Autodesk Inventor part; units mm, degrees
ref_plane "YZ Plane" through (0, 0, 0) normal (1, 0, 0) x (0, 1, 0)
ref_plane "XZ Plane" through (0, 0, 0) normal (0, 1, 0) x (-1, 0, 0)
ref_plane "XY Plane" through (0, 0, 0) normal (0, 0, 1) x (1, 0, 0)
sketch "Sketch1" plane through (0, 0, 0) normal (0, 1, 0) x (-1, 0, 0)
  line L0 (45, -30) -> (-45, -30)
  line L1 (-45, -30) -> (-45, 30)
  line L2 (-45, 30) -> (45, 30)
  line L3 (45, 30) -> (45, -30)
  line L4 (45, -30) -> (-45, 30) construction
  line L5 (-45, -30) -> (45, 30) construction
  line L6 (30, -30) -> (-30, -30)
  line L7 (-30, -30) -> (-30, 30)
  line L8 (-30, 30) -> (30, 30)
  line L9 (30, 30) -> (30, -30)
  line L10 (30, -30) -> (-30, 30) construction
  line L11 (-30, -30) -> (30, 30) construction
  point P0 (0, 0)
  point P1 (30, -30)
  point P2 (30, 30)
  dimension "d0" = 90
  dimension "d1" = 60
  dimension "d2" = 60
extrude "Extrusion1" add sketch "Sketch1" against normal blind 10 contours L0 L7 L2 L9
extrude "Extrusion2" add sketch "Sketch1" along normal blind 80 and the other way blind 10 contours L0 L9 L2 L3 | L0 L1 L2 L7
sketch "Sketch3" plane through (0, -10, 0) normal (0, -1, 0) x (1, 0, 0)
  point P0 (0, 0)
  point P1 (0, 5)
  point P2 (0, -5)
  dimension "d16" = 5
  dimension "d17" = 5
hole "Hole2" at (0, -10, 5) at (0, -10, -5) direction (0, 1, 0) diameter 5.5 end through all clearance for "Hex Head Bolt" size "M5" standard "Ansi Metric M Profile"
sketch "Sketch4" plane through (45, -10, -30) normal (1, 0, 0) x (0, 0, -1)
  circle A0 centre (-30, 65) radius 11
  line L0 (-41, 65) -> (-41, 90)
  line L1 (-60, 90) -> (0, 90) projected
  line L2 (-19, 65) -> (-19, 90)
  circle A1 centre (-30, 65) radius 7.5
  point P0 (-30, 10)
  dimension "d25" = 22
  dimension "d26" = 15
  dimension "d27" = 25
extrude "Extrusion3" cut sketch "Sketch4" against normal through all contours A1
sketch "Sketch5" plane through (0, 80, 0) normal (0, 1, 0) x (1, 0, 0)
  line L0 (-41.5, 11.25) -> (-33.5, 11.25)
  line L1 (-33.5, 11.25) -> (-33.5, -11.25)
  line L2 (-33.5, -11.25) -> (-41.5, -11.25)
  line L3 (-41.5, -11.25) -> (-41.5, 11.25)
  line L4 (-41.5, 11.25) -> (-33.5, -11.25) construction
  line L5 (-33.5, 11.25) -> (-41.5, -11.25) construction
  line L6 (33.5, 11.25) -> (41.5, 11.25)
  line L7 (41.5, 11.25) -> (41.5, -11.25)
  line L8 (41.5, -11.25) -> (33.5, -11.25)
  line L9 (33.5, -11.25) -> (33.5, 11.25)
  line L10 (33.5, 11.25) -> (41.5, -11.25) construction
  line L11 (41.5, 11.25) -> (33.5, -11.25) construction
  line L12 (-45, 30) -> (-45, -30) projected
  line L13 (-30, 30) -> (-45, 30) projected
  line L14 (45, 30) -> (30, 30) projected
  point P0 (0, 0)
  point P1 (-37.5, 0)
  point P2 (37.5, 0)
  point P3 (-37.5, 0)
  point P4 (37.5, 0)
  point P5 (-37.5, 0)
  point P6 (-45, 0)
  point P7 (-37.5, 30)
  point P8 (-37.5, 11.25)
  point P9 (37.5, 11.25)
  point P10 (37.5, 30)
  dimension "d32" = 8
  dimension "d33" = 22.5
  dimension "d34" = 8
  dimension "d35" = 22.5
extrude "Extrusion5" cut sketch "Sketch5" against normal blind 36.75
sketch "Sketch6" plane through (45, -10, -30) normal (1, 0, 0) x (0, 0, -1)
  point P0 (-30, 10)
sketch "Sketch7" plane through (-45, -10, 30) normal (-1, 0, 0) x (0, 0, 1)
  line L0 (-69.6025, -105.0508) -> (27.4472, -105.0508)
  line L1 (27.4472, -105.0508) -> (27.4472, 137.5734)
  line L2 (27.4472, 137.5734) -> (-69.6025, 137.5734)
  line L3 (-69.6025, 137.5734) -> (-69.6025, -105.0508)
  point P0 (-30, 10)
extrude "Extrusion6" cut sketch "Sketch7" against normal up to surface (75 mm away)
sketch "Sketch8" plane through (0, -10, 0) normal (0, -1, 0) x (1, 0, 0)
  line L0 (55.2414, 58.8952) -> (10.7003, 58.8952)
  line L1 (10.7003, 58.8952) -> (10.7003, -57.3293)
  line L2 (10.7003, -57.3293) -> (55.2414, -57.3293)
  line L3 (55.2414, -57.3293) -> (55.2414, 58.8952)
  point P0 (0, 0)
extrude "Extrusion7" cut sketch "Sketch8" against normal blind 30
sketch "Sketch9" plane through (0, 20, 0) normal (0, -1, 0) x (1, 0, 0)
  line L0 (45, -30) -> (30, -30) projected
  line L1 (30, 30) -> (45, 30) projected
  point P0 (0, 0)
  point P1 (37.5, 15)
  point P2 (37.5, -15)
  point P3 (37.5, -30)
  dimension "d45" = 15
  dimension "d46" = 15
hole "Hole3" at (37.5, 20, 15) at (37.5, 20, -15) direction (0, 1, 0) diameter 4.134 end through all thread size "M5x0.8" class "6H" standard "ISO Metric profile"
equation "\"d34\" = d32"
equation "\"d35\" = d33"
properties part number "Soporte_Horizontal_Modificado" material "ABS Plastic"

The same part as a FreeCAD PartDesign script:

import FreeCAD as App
import Part
import Sketcher

V = App.Vector

doc = App.newDocument("Part")
body = doc.addObject("PartDesign::Body", "Body")

# Sketch on XZ plane
sketch1 = body.newObject("Sketcher::SketchObject", "Sketch")
sketch1.AttachmentSupport = (doc.getObject("XZ_Plane"), [""])
sketch1.MapMode = "FlatFace"
sketch1.addGeometry([
    Part.LineSegment(V(30, -30, 0), V(-30, -30, 0)),
    Part.LineSegment(V(-30, -30, 0), V(-30, 30, 0)),
    Part.LineSegment(V(-30, 30, 0), V(30, 30, 0)),
    Part.LineSegment(V(30, 30, 0), V(30, -30, 0)),
], False)
sketch1.addConstraint([
    Sketcher.Constraint("Coincident", 0, 2, 1, 1),
    Sketcher.Constraint("Coincident", 1, 2, 2, 1),
    Sketcher.Constraint("Coincident", 2, 2, 3, 1),
    Sketcher.Constraint("Coincident", 3, 2, 0, 1),
    Sketcher.Constraint("Horizontal", 0),
    Sketcher.Constraint("Vertical", 1),
    Sketcher.Constraint("Horizontal", 2),
    Sketcher.Constraint("Vertical", 3),
    Sketcher.Constraint("Symmetric", 0, 2, 2, 2, -1, 1),
    Sketcher.Constraint("Equal", 2, 1),
    Sketcher.Constraint("DistanceX", 0, 2, 0, 1, 60.0),
])
pad1 = body.newObject("PartDesign::Pad", "Pad")
pad1.Profile = sketch1
pad1.Length = 10

# Sketch on XZ plane
sketch2 = body.newObject("Sketcher::SketchObject", "Sketch001")
sketch2.AttachmentSupport = (doc.getObject("XZ_Plane"), [""])
sketch2.MapMode = "FlatFace"
sketch2.addGeometry([
    Part.LineSegment(V(-30, -30, 0), V(-45, -30, 0)),  # 0
    Part.LineSegment(V(-45, -30, 0), V(-45, 30, 0)),  # 1
    Part.LineSegment(V(-45, 30, 0), V(-30, 30, 0)),  # 2
    Part.LineSegment(V(-30, 30, 0), V(-30, -30, 0)),  # 3
    Part.LineSegment(V(45, -30, 0), V(30, -30, 0)),  # 4
    Part.LineSegment(V(30, -30, 0), V(30, 30, 0)),  # 5
    Part.LineSegment(V(30, 30, 0), V(45, 30, 0)),  # 6
    Part.LineSegment(V(45, 30, 0), V(45, -30, 0)),  # 7
], False)
sketch2.addConstraint([
    Sketcher.Constraint("Coincident", 0, 2, 1, 1),
    Sketcher.Constraint("Coincident", 1, 2, 2, 1),
    Sketcher.Constraint("Coincident", 2, 2, 3, 1),
    Sketcher.Constraint("Coincident", 3, 2, 0, 1),
    Sketcher.Constraint("Coincident", 4, 2, 5, 1),
    Sketcher.Constraint("Coincident", 5, 2, 6, 1),
    Sketcher.Constraint("Coincident", 6, 2, 7, 1),
    Sketcher.Constraint("Coincident", 7, 2, 4, 1),
    Sketcher.Constraint("Horizontal", 0),
    Sketcher.Constraint("Vertical", 1),
    Sketcher.Constraint("Horizontal", 2),
    Sketcher.Constraint("Vertical", 3),
    Sketcher.Constraint("Horizontal", 4),
    Sketcher.Constraint("Vertical", 5),
    Sketcher.Constraint("Horizontal", 6),
    Sketcher.Constraint("Vertical", 7),
    Sketcher.Constraint("Symmetric", 2, 2, 4, 2, -1, 1),
    Sketcher.Constraint("Symmetric", 0, 2, 6, 2, -1, 1),
    Sketcher.Constraint("Horizontal", 3, 2, 4, 2),
    Sketcher.Constraint("DistanceY", 1, 1, 1, 2, 60.0),
    Sketcher.Constraint("DistanceX", 3, 2, 4, 2, 60.0),
    Sketcher.Constraint("DistanceX", 1, 2, 6, 2, 90.0),
])
pad2 = body.newObject("PartDesign::Pad", "Pad001")
pad2.Profile = sketch2
pad2.Type = "TwoLengths"
pad2.Length = 80
pad2.Length2 = 10
pad2.Reversed = True

# Sketch on XZ plane
sketch3 = body.newObject("Sketcher::SketchObject", "Sketch002")
sketch3.AttachmentSupport = (doc.getObject("XZ_Plane"), [""])
sketch3.MapMode = "FlatFace"
sketch3.AttachmentOffset = App.Placement(V(0, 0, 10), App.Rotation())
sketch3.addGeometry([
    Part.Circle(V(0, 5, 0), V(0, 0, 1), 2.8),
    Part.Circle(V(0, -5, 0), V(0, 0, 1), 2.8),
], False)
sketch3.addConstraint([
    Sketcher.Constraint("Equal", 0, 1),
    Sketcher.Constraint("Symmetric", 0, 3, 1, 3, -1, 1),
    Sketcher.Constraint("PointOnObject", 0, 3, -2),
    Sketcher.Constraint("Diameter", 0, 5.5),
    Sketcher.Constraint("DistanceY", -1, 1, 0, 3, 5.0),
])
doc.recompute()
hole = body.newObject("PartDesign::Hole", "Hole")
hole.Profile = sketch3
hole.ThreadType = "None"
hole.Diameter = 5.5
hole.DepthType = "ThroughAll"

# Sketch on YZ plane
sketch4 = body.newObject("Sketcher::SketchObject", "Sketch003")
sketch4.AttachmentSupport = (doc.getObject("YZ_Plane"), [""])
sketch4.MapMode = "FlatFace"
sketch4.AttachmentOffset = App.Placement(V(0, 0, 45), App.Rotation())
sketch4.addGeometry(Part.Circle(V(55, 0, 0), V(0, 0, 1), 8), False)
sketch4.addConstraint([
    Sketcher.Constraint("PointOnObject", 0, 3, -1),
    Sketcher.Constraint("Diameter", 0, 15.0),
    Sketcher.Constraint("DistanceX", -1, 1, 0, 3, 55.0),
])
pocket1 = body.newObject("PartDesign::Pocket", "Pocket")
pocket1.Profile = sketch4
pocket1.Type = "ThroughAll"

# Sketch on XZ plane
sketch5 = body.newObject("Sketcher::SketchObject", "Sketch004")
sketch5.AttachmentSupport = (doc.getObject("XZ_Plane"), [""])
sketch5.MapMode = "FlatFace"
sketch5.AttachmentOffset = App.Placement(V(0, 0, -80), App.Rotation())
sketch5.addGeometry([
    Part.LineSegment(V(-34, -11, 0), V(-42, -11, 0)),  # 0
    Part.LineSegment(V(-42, -11, 0), V(-42, 11, 0)),  # 1
    Part.LineSegment(V(-42, 11, 0), V(-34, 11, 0)),  # 2
    Part.LineSegment(V(-34, 11, 0), V(-34, -11, 0)),  # 3
    Part.LineSegment(V(42, -11, 0), V(34, -11, 0)),  # 4
    Part.LineSegment(V(34, -11, 0), V(34, 11, 0)),  # 5
    Part.LineSegment(V(34, 11, 0), V(42, 11, 0)),  # 6
    Part.LineSegment(V(42, 11, 0), V(42, -11, 0)),  # 7
], False)
sketch5.addConstraint([
    Sketcher.Constraint("Coincident", 0, 2, 1, 1),
    Sketcher.Constraint("Coincident", 1, 2, 2, 1),
    Sketcher.Constraint("Coincident", 2, 2, 3, 1),
    Sketcher.Constraint("Coincident", 3, 2, 0, 1),
    Sketcher.Constraint("Coincident", 4, 2, 5, 1),
    Sketcher.Constraint("Coincident", 5, 2, 6, 1),
    Sketcher.Constraint("Coincident", 6, 2, 7, 1),
    Sketcher.Constraint("Coincident", 7, 2, 4, 1),
    Sketcher.Constraint("Horizontal", 0),
    Sketcher.Constraint("Vertical", 1),
    Sketcher.Constraint("Horizontal", 2),
    Sketcher.Constraint("Vertical", 3),
    Sketcher.Constraint("Horizontal", 4),
    Sketcher.Constraint("Vertical", 5),
    Sketcher.Constraint("Horizontal", 6),
    Sketcher.Constraint("Vertical", 7),
    Sketcher.Constraint("Symmetric", 2, 2, 4, 2, -1, 1),
    Sketcher.Constraint("Symmetric", 0, 2, 6, 2, -1, 1),
    Sketcher.Constraint("Horizontal", 3, 2, 4, 2),
    Sketcher.Constraint("DistanceX", 0, 2, 0, 1, 8.0),
    Sketcher.Constraint("DistanceY", 1, 1, 1, 2, 22.5),
    Sketcher.Constraint("DistanceX", 3, 2, 4, 2, 67.0),
])
pocket2 = body.newObject("PartDesign::Pocket", "Pocket001")
pocket2.Profile = sketch5
pocket2.Length = 36.75
pocket2.Reversed = True

# Sketch on YZ plane
sketch6 = body.newObject("Sketcher::SketchObject", "Sketch005")
sketch6.AttachmentSupport = (doc.getObject("YZ_Plane"), [""])
sketch6.MapMode = "FlatFace"
sketch6.AttachmentOffset = App.Placement(V(0, 0, -45), App.Rotation())
sketch6.addGeometry([
    Part.LineSegment(V(128, -40, 0), V(-115, -40, 0)),
    Part.LineSegment(V(-115, -40, 0), V(-115, 57, 0)),
    Part.LineSegment(V(-115, 57, 0), V(128, 57, 0)),
    Part.LineSegment(V(128, 57, 0), V(128, -40, 0)),
], False)
sketch6.addConstraint([
    Sketcher.Constraint("Coincident", 0, 2, 1, 1),
    Sketcher.Constraint("Coincident", 1, 2, 2, 1),
    Sketcher.Constraint("Coincident", 2, 2, 3, 1),
    Sketcher.Constraint("Coincident", 3, 2, 0, 1),
    Sketcher.Constraint("Horizontal", 0),
    Sketcher.Constraint("Vertical", 1),
    Sketcher.Constraint("Horizontal", 2),
    Sketcher.Constraint("Vertical", 3),
    Sketcher.Constraint("DistanceX", 0, 2, 0, 1, 242.6242),
    Sketcher.Constraint("DistanceY", 1, 1, 1, 2, 97.0497),
    Sketcher.Constraint("DistanceX", 0, 2, -1, 1, 115.0508),
    Sketcher.Constraint("DistanceY", 0, 2, -1, 1, 39.6025),
])
pocket3 = body.newObject("PartDesign::Pocket", "Pocket002")
pocket3.Profile = sketch6
pocket3.Length = 75
pocket3.Reversed = True

# Sketch on XZ plane
sketch7 = body.newObject("Sketcher::SketchObject", "Sketch006")
sketch7.AttachmentSupport = (doc.getObject("XZ_Plane"), [""])
sketch7.MapMode = "FlatFace"
sketch7.AttachmentOffset = App.Placement(V(0, 0, 10), App.Rotation())
sketch7.addGeometry([
    Part.LineSegment(V(55, -57, 0), V(55, 59, 0)),
    Part.LineSegment(V(55, 59, 0), V(11, 59, 0)),
    Part.LineSegment(V(11, 59, 0), V(11, -57, 0)),
    Part.LineSegment(V(11, -57, 0), V(55, -57, 0)),
], False)
sketch7.addConstraint([
    Sketcher.Constraint("Coincident", 0, 2, 1, 1),
    Sketcher.Constraint("Coincident", 1, 2, 2, 1),
    Sketcher.Constraint("Coincident", 2, 2, 3, 1),
    Sketcher.Constraint("Coincident", 3, 2, 0, 1),
    Sketcher.Constraint("Vertical", 0),
    Sketcher.Constraint("Horizontal", 1),
    Sketcher.Constraint("Vertical", 2),
    Sketcher.Constraint("Horizontal", 3),
    Sketcher.Constraint("DistanceX", 1, 2, 1, 1, 44.541),
    Sketcher.Constraint("DistanceY", 0, 1, 0, 2, 116.2245),
    Sketcher.Constraint("DistanceX", -1, 1, 0, 2, 55.2414),
    Sketcher.Constraint("DistanceY", -1, 1, 0, 2, 58.8952),
])
pocket4 = body.newObject("PartDesign::Pocket", "Pocket003")
pocket4.Profile = sketch7
pocket4.Length = 30

# Sketch on XZ plane
sketch8 = body.newObject("Sketcher::SketchObject", "Sketch007")
sketch8.AttachmentSupport = (doc.getObject("XZ_Plane"), [""])
sketch8.MapMode = "FlatFace"
sketch8.AttachmentOffset = App.Placement(V(0, 0, -20), App.Rotation())
sketch8.addGeometry([
    Part.Circle(V(37.5, 15, 0), V(0, 0, 1), 2.1),
    Part.Circle(V(37.5, -15, 0), V(0, 0, 1), 2.1),
], False)
sketch8.addConstraint([
    Sketcher.Constraint("Equal", 0, 1),
    Sketcher.Constraint("Symmetric", 0, 3, 1, 3, -1),
    Sketcher.Constraint("Diameter", 0, 4.134),
    Sketcher.Constraint("DistanceY", -1, 1, 0, 3, 15.0),
    Sketcher.Constraint("DistanceX", -1, 1, 0, 3, 37.5),
])
doc.recompute()
hole2 = body.newObject("PartDesign::Hole", "Hole001")
hole2.Profile = sketch8
hole2.ThreadType = "None"
hole2.Diameter = 4.134
hole2.DepthType = "ThroughAll"

doc.recompute()
